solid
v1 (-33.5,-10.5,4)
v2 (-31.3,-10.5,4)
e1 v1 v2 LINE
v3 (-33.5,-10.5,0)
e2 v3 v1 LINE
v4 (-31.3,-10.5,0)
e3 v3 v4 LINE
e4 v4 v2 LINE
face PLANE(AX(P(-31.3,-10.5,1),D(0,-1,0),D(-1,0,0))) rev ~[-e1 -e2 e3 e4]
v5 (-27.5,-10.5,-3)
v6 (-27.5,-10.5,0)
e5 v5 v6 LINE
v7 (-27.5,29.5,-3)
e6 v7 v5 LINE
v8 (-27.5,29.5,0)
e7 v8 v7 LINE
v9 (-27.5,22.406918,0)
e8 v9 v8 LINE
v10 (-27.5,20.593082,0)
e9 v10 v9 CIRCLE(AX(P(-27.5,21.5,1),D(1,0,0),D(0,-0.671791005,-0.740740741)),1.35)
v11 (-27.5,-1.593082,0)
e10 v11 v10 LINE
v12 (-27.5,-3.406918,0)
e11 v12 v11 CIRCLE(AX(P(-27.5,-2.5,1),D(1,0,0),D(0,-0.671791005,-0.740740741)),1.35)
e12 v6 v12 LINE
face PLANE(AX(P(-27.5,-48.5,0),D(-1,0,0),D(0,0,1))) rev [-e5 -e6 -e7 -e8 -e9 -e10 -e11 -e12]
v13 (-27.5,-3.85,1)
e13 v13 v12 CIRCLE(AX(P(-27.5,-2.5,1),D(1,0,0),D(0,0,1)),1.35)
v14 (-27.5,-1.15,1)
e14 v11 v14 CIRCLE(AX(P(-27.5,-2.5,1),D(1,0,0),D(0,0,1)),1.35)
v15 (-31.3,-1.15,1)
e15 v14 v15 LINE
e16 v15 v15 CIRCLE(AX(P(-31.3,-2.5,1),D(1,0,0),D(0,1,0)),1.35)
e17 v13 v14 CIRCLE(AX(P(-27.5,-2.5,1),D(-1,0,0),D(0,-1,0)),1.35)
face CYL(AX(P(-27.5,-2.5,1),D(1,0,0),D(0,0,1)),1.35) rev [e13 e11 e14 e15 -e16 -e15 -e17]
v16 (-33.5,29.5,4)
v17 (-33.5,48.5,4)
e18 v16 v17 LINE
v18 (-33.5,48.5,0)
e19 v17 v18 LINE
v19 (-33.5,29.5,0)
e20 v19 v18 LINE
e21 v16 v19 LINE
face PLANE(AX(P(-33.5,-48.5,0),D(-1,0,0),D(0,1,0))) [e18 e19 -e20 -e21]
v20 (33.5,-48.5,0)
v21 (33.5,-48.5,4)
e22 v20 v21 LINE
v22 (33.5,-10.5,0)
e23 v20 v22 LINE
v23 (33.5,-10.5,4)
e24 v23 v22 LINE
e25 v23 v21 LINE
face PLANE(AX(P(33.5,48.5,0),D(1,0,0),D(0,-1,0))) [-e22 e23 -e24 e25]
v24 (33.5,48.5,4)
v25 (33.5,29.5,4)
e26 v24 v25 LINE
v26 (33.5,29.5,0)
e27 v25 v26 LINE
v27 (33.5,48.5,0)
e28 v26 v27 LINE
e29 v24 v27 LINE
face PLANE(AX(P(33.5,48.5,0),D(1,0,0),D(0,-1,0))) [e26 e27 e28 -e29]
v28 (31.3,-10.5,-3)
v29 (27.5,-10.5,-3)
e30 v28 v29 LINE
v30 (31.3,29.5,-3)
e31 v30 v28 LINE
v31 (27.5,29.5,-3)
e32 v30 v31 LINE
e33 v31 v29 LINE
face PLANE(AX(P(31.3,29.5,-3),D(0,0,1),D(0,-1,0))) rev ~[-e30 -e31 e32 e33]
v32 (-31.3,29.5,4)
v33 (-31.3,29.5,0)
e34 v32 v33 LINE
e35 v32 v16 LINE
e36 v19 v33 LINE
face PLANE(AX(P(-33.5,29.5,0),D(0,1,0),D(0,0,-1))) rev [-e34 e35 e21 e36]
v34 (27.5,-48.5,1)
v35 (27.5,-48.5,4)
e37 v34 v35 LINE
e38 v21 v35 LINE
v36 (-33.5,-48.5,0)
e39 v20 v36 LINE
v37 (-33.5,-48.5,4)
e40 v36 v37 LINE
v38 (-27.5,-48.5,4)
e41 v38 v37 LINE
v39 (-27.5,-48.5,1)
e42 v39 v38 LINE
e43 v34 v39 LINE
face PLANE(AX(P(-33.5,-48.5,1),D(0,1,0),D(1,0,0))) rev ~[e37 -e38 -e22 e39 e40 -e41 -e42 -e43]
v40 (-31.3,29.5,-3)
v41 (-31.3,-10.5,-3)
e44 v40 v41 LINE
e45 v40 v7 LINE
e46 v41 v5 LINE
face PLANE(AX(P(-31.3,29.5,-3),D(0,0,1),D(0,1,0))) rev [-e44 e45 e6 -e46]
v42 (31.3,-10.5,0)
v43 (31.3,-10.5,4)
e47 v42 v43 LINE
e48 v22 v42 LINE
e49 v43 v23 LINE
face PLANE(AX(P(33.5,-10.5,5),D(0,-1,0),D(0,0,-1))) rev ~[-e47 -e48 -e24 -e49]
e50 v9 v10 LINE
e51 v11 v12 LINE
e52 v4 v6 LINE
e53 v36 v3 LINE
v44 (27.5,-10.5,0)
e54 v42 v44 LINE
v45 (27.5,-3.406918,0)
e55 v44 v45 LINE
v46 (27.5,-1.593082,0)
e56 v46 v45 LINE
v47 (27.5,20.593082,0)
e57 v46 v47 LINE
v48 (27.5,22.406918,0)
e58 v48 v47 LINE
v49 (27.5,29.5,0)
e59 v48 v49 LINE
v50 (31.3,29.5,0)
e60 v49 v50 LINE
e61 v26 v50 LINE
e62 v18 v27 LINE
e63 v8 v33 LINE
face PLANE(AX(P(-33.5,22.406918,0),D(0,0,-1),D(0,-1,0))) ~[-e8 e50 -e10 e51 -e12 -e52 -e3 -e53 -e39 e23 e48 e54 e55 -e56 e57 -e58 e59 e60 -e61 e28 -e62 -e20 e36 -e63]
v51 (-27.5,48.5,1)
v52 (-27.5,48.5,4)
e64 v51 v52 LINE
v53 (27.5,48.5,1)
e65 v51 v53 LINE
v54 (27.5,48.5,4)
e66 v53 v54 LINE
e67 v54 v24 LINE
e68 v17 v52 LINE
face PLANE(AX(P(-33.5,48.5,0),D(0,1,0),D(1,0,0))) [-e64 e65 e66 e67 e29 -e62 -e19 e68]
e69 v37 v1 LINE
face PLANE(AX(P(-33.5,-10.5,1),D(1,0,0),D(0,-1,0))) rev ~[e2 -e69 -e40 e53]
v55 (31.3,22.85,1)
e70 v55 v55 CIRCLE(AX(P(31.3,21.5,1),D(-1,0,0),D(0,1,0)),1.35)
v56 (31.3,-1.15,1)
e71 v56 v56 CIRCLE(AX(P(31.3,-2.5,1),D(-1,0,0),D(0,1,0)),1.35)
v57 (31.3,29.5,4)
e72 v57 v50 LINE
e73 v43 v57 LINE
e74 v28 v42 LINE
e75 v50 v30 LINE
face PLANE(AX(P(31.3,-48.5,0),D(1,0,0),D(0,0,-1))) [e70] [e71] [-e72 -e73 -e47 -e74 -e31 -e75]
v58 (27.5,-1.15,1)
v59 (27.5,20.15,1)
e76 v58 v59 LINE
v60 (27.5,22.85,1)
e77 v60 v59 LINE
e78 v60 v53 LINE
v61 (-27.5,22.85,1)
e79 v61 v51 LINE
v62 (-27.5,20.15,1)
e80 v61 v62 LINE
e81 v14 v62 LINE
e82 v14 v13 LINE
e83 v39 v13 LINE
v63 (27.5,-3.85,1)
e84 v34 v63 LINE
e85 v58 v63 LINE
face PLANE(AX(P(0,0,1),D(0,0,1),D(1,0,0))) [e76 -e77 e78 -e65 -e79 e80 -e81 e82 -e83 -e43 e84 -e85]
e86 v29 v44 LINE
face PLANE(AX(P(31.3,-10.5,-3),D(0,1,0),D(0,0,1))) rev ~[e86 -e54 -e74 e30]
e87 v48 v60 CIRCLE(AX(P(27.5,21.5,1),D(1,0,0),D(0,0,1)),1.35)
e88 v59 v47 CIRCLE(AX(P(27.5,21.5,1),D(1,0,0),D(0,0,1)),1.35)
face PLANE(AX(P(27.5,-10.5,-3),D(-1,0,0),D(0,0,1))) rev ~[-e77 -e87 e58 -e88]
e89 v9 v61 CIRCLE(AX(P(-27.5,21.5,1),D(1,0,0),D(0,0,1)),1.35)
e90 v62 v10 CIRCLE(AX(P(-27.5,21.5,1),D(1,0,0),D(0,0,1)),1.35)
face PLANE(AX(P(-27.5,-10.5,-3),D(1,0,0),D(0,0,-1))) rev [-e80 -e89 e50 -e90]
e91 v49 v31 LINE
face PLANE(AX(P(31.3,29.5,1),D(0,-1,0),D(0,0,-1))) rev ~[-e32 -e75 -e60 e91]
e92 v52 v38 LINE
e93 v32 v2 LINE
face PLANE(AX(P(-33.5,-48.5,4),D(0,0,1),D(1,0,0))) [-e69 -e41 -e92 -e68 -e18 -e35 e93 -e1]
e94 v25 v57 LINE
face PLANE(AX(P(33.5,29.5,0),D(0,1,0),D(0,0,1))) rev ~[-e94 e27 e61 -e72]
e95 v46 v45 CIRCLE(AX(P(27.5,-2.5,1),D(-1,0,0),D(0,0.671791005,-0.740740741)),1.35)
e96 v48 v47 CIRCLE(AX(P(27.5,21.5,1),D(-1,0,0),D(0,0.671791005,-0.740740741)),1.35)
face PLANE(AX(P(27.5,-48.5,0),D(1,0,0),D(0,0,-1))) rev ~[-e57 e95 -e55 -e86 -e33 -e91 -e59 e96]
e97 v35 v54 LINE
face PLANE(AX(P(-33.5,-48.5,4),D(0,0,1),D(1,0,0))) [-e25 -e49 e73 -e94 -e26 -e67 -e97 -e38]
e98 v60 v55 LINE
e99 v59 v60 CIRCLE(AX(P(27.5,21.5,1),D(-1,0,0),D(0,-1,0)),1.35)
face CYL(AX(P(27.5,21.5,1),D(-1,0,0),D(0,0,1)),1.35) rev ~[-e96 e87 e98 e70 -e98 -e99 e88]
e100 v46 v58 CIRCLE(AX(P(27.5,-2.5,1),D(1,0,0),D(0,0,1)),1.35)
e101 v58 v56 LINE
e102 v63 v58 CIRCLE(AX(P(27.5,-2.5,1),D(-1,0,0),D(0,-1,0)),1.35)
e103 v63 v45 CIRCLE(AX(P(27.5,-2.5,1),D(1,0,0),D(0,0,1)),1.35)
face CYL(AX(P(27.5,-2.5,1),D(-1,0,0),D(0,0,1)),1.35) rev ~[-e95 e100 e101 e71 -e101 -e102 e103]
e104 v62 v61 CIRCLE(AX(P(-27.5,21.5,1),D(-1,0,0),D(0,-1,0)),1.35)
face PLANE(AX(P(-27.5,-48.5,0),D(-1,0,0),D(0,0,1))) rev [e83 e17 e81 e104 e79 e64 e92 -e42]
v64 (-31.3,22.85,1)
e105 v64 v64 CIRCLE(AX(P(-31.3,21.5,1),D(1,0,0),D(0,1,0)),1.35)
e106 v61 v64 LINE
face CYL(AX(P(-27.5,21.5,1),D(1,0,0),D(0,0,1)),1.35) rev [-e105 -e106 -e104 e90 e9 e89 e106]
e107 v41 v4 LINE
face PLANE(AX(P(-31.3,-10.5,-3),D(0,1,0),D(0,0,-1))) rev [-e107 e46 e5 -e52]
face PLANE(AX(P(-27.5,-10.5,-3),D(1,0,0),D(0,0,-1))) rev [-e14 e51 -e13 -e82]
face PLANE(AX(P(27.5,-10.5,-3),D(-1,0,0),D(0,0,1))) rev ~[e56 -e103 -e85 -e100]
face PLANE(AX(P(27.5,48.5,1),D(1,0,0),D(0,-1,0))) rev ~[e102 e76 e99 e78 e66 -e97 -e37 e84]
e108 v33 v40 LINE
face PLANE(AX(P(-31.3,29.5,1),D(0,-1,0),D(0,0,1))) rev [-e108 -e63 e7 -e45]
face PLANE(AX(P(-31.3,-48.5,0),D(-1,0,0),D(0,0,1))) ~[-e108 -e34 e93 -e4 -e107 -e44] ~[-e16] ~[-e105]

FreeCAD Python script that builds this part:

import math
import FreeCAD as App
import Part
import Sketcher

V = App.Vector
Q = App.Units.Quantity


def add_polygon(sketch, points):
    """Adds a closed chain of lines whose ends are joined by coincident constraints."""
    first, n = sketch.GeometryCount, len(points)
    for a, b in zip(points, points[1:] + points[:1]):
        sketch.addGeometry(Part.LineSegment(App.Vector(*a, 0), App.Vector(*b, 0)), False)
    for i in range(n):
        sketch.addConstraint(Sketcher.Constraint("Coincident", first + i, 2, first + (i + 1) % n, 1))

doc = App.newDocument("Part")
body = doc.addObject("PartDesign::Body", "Body")

# Sketch on XY plane
sketch1 = body.newObject("Sketcher::SketchObject", "Sketch")
sketch1.AttachmentSupport = (doc.getObject("XY_Plane"), [""])
sketch1.MapMode = "FlatFace"
add_polygon(sketch1, [(-34, -48), (34, -48), (34, 48), (-34, 48)])  # lines 0-3
sketch1.addConstraint([
    Sketcher.Constraint("Horizontal", 0),
    Sketcher.Constraint("Vertical", 1),
    Sketcher.Constraint("Horizontal", 2),
    Sketcher.Constraint("Vertical", 3),
    Sketcher.Constraint("Symmetric", 0, 2, 2, 2, -1, 1),
    Sketcher.Constraint("DistanceX", 0, 1, 0, 2, Q("67 mm")),
    Sketcher.Constraint("DistanceY", 1, 1, 1, 2, Q("97 mm")),
])
pad1 = body.newObject("PartDesign::Pad", "Pad")
pad1.Profile = sketch1
pad1.Length = 1

# Sketch on YZ plane
sketch2 = body.newObject("Sketcher::SketchObject", "Sketch001")
sketch2.AttachmentSupport = (doc.getObject("YZ_Plane"), [""])
sketch2.MapMode = "FlatFace"
sketch2.AttachmentOffset = App.Placement(V(0, 0, 33.5), App.Rotation())
sketch2.addGeometry([
    Part.LineSegment(V(22.4, 0, 0), V(29.5, 0, 0)),  # 0
    Part.LineSegment(V(29.5, 0, 0), V(29.5, 5, 0)),  # 1
    Part.LineSegment(V(29.5, 5, 0), V(-10.5, 5, 0)),  # 2
    Part.LineSegment(V(-10.5, 5, 0), V(-10.5, 0, 0)),  # 3
    Part.LineSegment(V(-10.5, 0, 0), V(-3.4, 0, 0)),  # 4
    Part.ArcOfCircle(Part.Circle(V(-2.5, 1, 0), V(0, 0, 1), 1.4), math.radians(-48), math.radians(228)),  # 5
    Part.LineSegment(V(-1.6, 0, 0), V(20.6, 0, 0)),  # 6
    Part.ArcOfCircle(Part.Circle(V(21.5, 1, 0), V(0, 0, 1), 1.4), math.radians(-48), math.radians(228)),  # 7
], False)
sketch2.addConstraint([
    Sketcher.Constraint("Coincident", 0, 2, 1, 1),
    Sketcher.Constraint("Coincident", 1, 2, 2, 1),
    Sketcher.Constraint("Coincident", 2, 2, 3, 1),
    Sketcher.Constraint("Coincident", 3, 2, 4, 1),
    Sketcher.Constraint("Coincident", 4, 2, 5, 2),
    Sketcher.Constraint("Coincident", 5, 1, 6, 1),
    Sketcher.Constraint("Coincident", 6, 2, 7, 2),
    Sketcher.Constraint("Coincident", 7, 1, 0, 1),
    Sketcher.Constraint("Horizontal", 0),
    Sketcher.Constraint("Vertical", 1),
    Sketcher.Constraint("Horizontal", 2),
    Sketcher.Constraint("Vertical", 3),
    Sketcher.Constraint("Horizontal", 4),
    Sketcher.Constraint("Horizontal", 6),
    Sketcher.Constraint("Equal", 5, 7),
    Sketcher.Constraint("PointOnObject", 0, 2, -1),
    Sketcher.Constraint("PointOnObject", 3, 2, -1),
    Sketcher.Constraint("PointOnObject", 5, 1, -1),
    Sketcher.Constraint("Horizontal", 5, 3, 7, 3),
    Sketcher.Constraint("Equal", 0, 4),
    Sketcher.Constraint("DistanceX", 2, 2, 2, 1, Q("40 mm")),
    Sketcher.Constraint("DistanceY", 1, 1, 1, 2, Q("5 mm")),
    Sketcher.Constraint("Radius", 5, Q("1.35 mm")),
    Sketcher.Constraint("DistanceY", -1, 1, 5, 3, Q("1 mm")),
    Sketcher.Constraint("DistanceX", 7, 3, 0, 2, Q("8 mm")),
    Sketcher.Constraint("DistanceX", 5, 3, -1, 1, Q("2.5 mm")),
])
pad2 = body.newObject("PartDesign::Pad", "Pad001")
pad2.Profile = sketch2
pad2.Length = 6
pad2.Reversed = True

# Sketch on YZ plane
sketch3 = body.newObject("Sketcher::SketchObject", "Sketch002")
sketch3.AttachmentSupport = (doc.getObject("YZ_Plane"), [""])
sketch3.MapMode = "FlatFace"
sketch3.AttachmentOffset = App.Placement(V(0, 0, 33.5), App.Rotation())
sketch3.addGeometry([
    Part.LineSegment(V(22.4, 0, 0), V(29.5, 0, 0)),  # 0
    Part.LineSegment(V(29.5, 0, 0), V(29.5, 5, 0)),  # 1
    Part.LineSegment(V(29.5, 5, 0), V(-10.5, 5, 0)),  # 2
    Part.LineSegment(V(-10.5, 5, 0), V(-10.5, 0, 0)),  # 3
    Part.LineSegment(V(-10.5, 0, 0), V(-3.4, 0, 0)),  # 4
    Part.ArcOfCircle(Part.Circle(V(-2.5, 1, 0), V(0, 0, 1), 1.4), math.radians(-48), math.radians(228)),  # 5
    Part.LineSegment(V(-1.6, 0, 0), V(20.6, 0, 0)),  # 6
    Part.ArcOfCircle(Part.Circle(V(21.5, 1, 0), V(0, 0, 1), 1.4), math.radians(-48), math.radians(228)),  # 7
], False)
sketch3.addConstraint([
    Sketcher.Constraint("Coincident", 0, 2, 1, 1),
    Sketcher.Constraint("Coincident", 1, 2, 2, 1),
    Sketcher.Constraint("Coincident", 2, 2, 3, 1),
    Sketcher.Constraint("Coincident", 3, 2, 4, 1),
    Sketcher.Constraint("Coincident", 4, 2, 5, 2),
    Sketcher.Constraint("Coincident", 5, 1, 6, 1),
    Sketcher.Constraint("Coincident", 6, 2, 7, 2),
    Sketcher.Constraint("Coincident", 7, 1, 0, 1),
    Sketcher.Constraint("Horizontal", 0),
    Sketcher.Constraint("Vertical", 1),
    Sketcher.Constraint("Horizontal", 2),
    Sketcher.Constraint("Vertical", 3),
    Sketcher.Constraint("Horizontal", 4),
    Sketcher.Constraint("Horizontal", 6),
    Sketcher.Constraint("Equal", 5, 7),
    Sketcher.Constraint("PointOnObject", 0, 2, -1),
    Sketcher.Constraint("PointOnObject", 3, 2, -1),
    Sketcher.Constraint("PointOnObject", 5, 1, -1),
    Sketcher.Constraint("Horizontal", 5, 3, 7, 3),
    Sketcher.Constraint("Equal", 0, 4),
    Sketcher.Constraint("DistanceX", 2, 2, 2, 1, Q("40 mm")),
    Sketcher.Constraint("DistanceY", 1, 1, 1, 2, Q("5 mm")),
    Sketcher.Constraint("Radius", 5, Q("1.35 mm")),
    Sketcher.Constraint("DistanceY", -1, 1, 5, 3, Q("1 mm")),
    Sketcher.Constraint("DistanceX", 7, 3, 0, 2, Q("8 mm")),
    Sketcher.Constraint("DistanceX", 5, 3, -1, 1, Q("2.5 mm")),
])
pocket1 = body.newObject("PartDesign::Pocket", "Pocket")
pocket1.Profile = sketch3
pocket1.Length = 2.2
doc.recompute()

mirrored = body.newObject("PartDesign::Mirrored", "Mirrored")
mirrored.Originals = [pad2, pocket1]
mirrored.MirrorPlane = (doc.getObject("YZ_Plane"), [""])
body.Tip = mirrored

# Sketch on YZ plane
sketch4 = body.newObject("Sketcher::SketchObject", "Sketch003")
sketch4.AttachmentSupport = (doc.getObject("YZ_Plane"), [""])
sketch4.MapMode = "FlatFace"
sketch4.AttachmentOffset = App.Placement(V(0, 0, 31.3), App.Rotation())
add_polygon(sketch4, [(29.5, -3), (29.5, 5), (-10.5, 5), (-10.5, -3)])  # lines 0-3
sketch4.addGeometry(Part.Circle(V(-2.5, 1, 0), V(0, 0, 1), 1.4), False)  # 4
sketch4.addGeometry(Part.Circle(V(21.5, 1, 0), V(0, 0, 1), 1.4), False)  # 5
sketch4.addConstraint([
    Sketcher.Constraint("Vertical", 0),
    Sketcher.Constraint("Horizontal", 1),
    Sketcher.Constraint("Vertical", 2),
    Sketcher.Constraint("Horizontal", 3),
    Sketcher.Constraint("Equal", 4, 5),
    Sketcher.Constraint("Horizontal", 4, 3, 5, 3),
    Sketcher.Constraint("DistanceY", 0, 1, 0, 2, Q("8 mm")),
    Sketcher.Constraint("DistanceX", 5, 3, 0, 2, Q("8 mm")),
    Sketcher.Constraint("DistanceX", 1, 2, 4, 3, Q("8 mm")),
    Sketcher.Constraint("Diameter", 4, Q("2.7 mm")),
    Sketcher.Constraint("DistanceX", 1, 2, 1, 1, Q("40 mm")),
    Sketcher.Constraint("DistanceY", -1, 1, 4, 3, Q("1 mm")),
    Sketcher.Constraint("DistanceY", -1, 1, 0, 2, Q("5 mm")),
    Sketcher.Constraint("DistanceX", 4, 3, -1, 1, Q("2.5 mm")),
])
pad3 = body.newObject("PartDesign::Pad", "Pad002")
pad3.Profile = sketch4
pad3.Length = 3.8
pad3.Reversed = True

# Sketch on YZ plane
sketch5 = body.newObject("Sketcher::SketchObject", "Sketch004")
sketch5.AttachmentSupport = (doc.getObject("YZ_Plane"), [""])
sketch5.MapMode = "FlatFace"
sketch5.AttachmentOffset = App.Placement(V(0, 0, 27.5), App.Rotation())
sketch5.addGeometry([
    Part.Circle(V(21.5, 1, 0), V(0, 0, 1), 1.4),
    Part.Circle(V(-2.5, 1, 0), V(0, 0, 1), 1.4),
], False)
sketch5.addConstraint([
    Sketcher.Constraint("Equal", 0, 1),
    Sketcher.Constraint("Horizontal", 0, 3, 1, 3),
    Sketcher.Constraint("Diameter", 0, Q("2.7 mm")),
    Sketcher.Constraint("DistanceY", -1, 1, 0, 3, Q("1 mm")),
    Sketcher.Constraint("DistanceX", 1, 3, 0, 3, Q("24 mm")),
    Sketcher.Constraint("DistanceX", -1, 1, 0, 3, Q("21.5 mm")),
])
pocket2 = body.newObject("PartDesign::Pocket", "Pocket001")
pocket2.Profile = sketch5
pocket2.Type = "ThroughAll"
pocket2.Reversed = True
doc.recompute()

mirrored2 = body.newObject("PartDesign::Mirrored", "Mirrored001")
mirrored2.Originals = [pad3, pocket2]
mirrored2.MirrorPlane = (doc.getObject("YZ_Plane"), [""])
body.Tip = mirrored2

# Sketch on XY plane
sketch6 = body.newObject("Sketcher::SketchObject", "Sketch005")
sketch6.AttachmentSupport = (doc.getObject("XY_Plane"), [""])
sketch6.MapMode = "FlatFace"
sketch6.AttachmentOffset = App.Placement(V(0, 0, 1), App.Rotation())
add_polygon(sketch6, [(-28, -48), (-28, -10), (-34, -10), (-34, -48)])  # lines 0-3
add_polygon(sketch6, [(28, -10), (28, -48), (34, -48), (34, -10)])  # lines 4-7
add_polygon(sketch6, [(-34, 30), (-28, 30), (-28, 48), (-34, 48)])  # lines 8-11
add_polygon(sketch6, [(34, 48), (28, 48), (28, 30), (34, 30)])  # lines 12-15
sketch6.addConstraint([
    Sketcher.Constraint("Vertical", 0),
    Sketcher.Constraint("Horizontal", 1),
    Sketcher.Constraint("Vertical", 2),
    Sketcher.Constraint("Horizontal", 3),
    Sketcher.Constraint("Vertical", 4),
    Sketcher.Constraint("Horizontal", 5),
    Sketcher.Constraint("Vertical", 6),
    Sketcher.Constraint("Horizontal", 7),
    Sketcher.Constraint("Horizontal", 8),
    Sketcher.Constraint("Vertical", 9),
    Sketcher.Constraint("Horizontal", 10),
    Sketcher.Constraint("Vertical", 11),
    Sketcher.Constraint("Horizontal", 12),
    Sketcher.Constraint("Vertical", 13),
    Sketcher.Constraint("Horizontal", 14),
    Sketcher.Constraint("Vertical", 15),
    Sketcher.Constraint("Symmetric", 4, 2, 9, 2, -1, 1),
    Sketcher.Constraint("Symmetric", 3, 2, 12, 2, -1, 1),
    Sketcher.Constraint("Symmetric", 3, 2, 4, 2, -2),
    Sketcher.Constraint("Symmetric", 1, 2, 6, 2, -2),
    Sketcher.Constraint("Symmetric", 11, 2, 14, 2, -2),
    Sketcher.Constraint("Vertical", 2, 2, 10, 2),
    Sketcher.Constraint("DistanceX", 1, 2, 1, 1, Q("6 mm")),
    Sketcher.Constraint("DistanceY", 0, 1, 0, 2, Q("38 mm")),
    Sketcher.Constraint("DistanceY", 9, 1, 9, 2, Q("19 mm")),
    Sketcher.Constraint("DistanceX", 3, 2, 4, 2, Q("55 mm")),
    Sketcher.Constraint("DistanceY", 0, 2, 8, 2, Q("40 mm")),
])
pad4 = body.newObject("PartDesign::Pad", "Pad003")
pad4.Profile = sketch6
pad4.Length = 4

# Sketch on XY plane
sketch7 = body.newObject("Sketcher::SketchObject", "Sketch006")
sketch7.AttachmentSupport = (doc.getObject("XY_Plane"), [""])
sketch7.MapMode = "FlatFace"
sketch7.AttachmentOffset = App.Placement(V(0, 0, 5), App.Rotation())
add_polygon(sketch7, [(-33.5, 29.5), (-31.3, 29.5), (-31.3, -10.5), (-33.5, -10.5), (-33.5, -48.5), (-27.5, -48.5), (-27.5, 48.5), (-33.5, 48.5)])  # lines 0-7
add_polygon(sketch7, [(33.5, -10.5), (31.3, -10.5), (31.3, 29.5), (33.5, 29.5), (33.5, 48.5), (27.5, 48.5), (27.5, -48.5), (33.5, -48.5)])  # lines 8-15
sketch7.addConstraint([
    Sketcher.Constraint("Horizontal", 0),
    Sketcher.Constraint("Vertical", 1),
    Sketcher.Constraint("Horizontal", 2),
    Sketcher.Constraint("Vertical", 3),
    Sketcher.Constraint("Horizontal", 4),
    Sketcher.Constraint("Vertical", 5),
    Sketcher.Constraint("Horizontal", 6),
    Sketcher.Constraint("Vertical", 7),
    Sketcher.Constraint("Horizontal", 8),
    Sketcher.Constraint("Vertical", 9),
    Sketcher.Constraint("Horizontal", 10),
    Sketcher.Constraint("Vertical", 11),
    Sketcher.Constraint("Horizontal", 12),
    Sketcher.Constraint("Vertical", 13),
    Sketcher.Constraint("Horizontal", 14),
    Sketcher.Constraint("Vertical", 15),
    Sketcher.Constraint("Symmetric", 3, 2, 11, 2, -1, 1),
    Sketcher.Constraint("Symmetric", 5, 2, 13, 2, -1, 1),
    Sketcher.Constraint("Symmetric", 1, 2, 8, 2, -2),
    Sketcher.Constraint("Symmetric", 7, 2, 10, 2, -2),
    Sketcher.Constraint("Symmetric", 3, 2, 14, 2, -2),
    Sketcher.Constraint("DistanceX", 4, 1, 4, 2, Q("6 mm")),
    Sketcher.Constraint("DistanceY", 1, 2, 1, 1, Q("40 mm")),
    Sketcher.Constraint("DistanceY", 3, 2, 3, 1, Q("38 mm")),
    Sketcher.Constraint("DistanceY", 5, 1, 5, 2, Q("97 mm")),
    Sketcher.Constraint("DistanceX", 0, 1, 0, 2, Q("2.2 mm")),
    Sketcher.Constraint("DistanceX", 5, 2, 10, 2, Q("61 mm")),
])
pocket3 = body.newObject("PartDesign::Pocket", "Pocket002")
pocket3.Profile = sketch7
pocket3.Length = 1

doc.recompute()
